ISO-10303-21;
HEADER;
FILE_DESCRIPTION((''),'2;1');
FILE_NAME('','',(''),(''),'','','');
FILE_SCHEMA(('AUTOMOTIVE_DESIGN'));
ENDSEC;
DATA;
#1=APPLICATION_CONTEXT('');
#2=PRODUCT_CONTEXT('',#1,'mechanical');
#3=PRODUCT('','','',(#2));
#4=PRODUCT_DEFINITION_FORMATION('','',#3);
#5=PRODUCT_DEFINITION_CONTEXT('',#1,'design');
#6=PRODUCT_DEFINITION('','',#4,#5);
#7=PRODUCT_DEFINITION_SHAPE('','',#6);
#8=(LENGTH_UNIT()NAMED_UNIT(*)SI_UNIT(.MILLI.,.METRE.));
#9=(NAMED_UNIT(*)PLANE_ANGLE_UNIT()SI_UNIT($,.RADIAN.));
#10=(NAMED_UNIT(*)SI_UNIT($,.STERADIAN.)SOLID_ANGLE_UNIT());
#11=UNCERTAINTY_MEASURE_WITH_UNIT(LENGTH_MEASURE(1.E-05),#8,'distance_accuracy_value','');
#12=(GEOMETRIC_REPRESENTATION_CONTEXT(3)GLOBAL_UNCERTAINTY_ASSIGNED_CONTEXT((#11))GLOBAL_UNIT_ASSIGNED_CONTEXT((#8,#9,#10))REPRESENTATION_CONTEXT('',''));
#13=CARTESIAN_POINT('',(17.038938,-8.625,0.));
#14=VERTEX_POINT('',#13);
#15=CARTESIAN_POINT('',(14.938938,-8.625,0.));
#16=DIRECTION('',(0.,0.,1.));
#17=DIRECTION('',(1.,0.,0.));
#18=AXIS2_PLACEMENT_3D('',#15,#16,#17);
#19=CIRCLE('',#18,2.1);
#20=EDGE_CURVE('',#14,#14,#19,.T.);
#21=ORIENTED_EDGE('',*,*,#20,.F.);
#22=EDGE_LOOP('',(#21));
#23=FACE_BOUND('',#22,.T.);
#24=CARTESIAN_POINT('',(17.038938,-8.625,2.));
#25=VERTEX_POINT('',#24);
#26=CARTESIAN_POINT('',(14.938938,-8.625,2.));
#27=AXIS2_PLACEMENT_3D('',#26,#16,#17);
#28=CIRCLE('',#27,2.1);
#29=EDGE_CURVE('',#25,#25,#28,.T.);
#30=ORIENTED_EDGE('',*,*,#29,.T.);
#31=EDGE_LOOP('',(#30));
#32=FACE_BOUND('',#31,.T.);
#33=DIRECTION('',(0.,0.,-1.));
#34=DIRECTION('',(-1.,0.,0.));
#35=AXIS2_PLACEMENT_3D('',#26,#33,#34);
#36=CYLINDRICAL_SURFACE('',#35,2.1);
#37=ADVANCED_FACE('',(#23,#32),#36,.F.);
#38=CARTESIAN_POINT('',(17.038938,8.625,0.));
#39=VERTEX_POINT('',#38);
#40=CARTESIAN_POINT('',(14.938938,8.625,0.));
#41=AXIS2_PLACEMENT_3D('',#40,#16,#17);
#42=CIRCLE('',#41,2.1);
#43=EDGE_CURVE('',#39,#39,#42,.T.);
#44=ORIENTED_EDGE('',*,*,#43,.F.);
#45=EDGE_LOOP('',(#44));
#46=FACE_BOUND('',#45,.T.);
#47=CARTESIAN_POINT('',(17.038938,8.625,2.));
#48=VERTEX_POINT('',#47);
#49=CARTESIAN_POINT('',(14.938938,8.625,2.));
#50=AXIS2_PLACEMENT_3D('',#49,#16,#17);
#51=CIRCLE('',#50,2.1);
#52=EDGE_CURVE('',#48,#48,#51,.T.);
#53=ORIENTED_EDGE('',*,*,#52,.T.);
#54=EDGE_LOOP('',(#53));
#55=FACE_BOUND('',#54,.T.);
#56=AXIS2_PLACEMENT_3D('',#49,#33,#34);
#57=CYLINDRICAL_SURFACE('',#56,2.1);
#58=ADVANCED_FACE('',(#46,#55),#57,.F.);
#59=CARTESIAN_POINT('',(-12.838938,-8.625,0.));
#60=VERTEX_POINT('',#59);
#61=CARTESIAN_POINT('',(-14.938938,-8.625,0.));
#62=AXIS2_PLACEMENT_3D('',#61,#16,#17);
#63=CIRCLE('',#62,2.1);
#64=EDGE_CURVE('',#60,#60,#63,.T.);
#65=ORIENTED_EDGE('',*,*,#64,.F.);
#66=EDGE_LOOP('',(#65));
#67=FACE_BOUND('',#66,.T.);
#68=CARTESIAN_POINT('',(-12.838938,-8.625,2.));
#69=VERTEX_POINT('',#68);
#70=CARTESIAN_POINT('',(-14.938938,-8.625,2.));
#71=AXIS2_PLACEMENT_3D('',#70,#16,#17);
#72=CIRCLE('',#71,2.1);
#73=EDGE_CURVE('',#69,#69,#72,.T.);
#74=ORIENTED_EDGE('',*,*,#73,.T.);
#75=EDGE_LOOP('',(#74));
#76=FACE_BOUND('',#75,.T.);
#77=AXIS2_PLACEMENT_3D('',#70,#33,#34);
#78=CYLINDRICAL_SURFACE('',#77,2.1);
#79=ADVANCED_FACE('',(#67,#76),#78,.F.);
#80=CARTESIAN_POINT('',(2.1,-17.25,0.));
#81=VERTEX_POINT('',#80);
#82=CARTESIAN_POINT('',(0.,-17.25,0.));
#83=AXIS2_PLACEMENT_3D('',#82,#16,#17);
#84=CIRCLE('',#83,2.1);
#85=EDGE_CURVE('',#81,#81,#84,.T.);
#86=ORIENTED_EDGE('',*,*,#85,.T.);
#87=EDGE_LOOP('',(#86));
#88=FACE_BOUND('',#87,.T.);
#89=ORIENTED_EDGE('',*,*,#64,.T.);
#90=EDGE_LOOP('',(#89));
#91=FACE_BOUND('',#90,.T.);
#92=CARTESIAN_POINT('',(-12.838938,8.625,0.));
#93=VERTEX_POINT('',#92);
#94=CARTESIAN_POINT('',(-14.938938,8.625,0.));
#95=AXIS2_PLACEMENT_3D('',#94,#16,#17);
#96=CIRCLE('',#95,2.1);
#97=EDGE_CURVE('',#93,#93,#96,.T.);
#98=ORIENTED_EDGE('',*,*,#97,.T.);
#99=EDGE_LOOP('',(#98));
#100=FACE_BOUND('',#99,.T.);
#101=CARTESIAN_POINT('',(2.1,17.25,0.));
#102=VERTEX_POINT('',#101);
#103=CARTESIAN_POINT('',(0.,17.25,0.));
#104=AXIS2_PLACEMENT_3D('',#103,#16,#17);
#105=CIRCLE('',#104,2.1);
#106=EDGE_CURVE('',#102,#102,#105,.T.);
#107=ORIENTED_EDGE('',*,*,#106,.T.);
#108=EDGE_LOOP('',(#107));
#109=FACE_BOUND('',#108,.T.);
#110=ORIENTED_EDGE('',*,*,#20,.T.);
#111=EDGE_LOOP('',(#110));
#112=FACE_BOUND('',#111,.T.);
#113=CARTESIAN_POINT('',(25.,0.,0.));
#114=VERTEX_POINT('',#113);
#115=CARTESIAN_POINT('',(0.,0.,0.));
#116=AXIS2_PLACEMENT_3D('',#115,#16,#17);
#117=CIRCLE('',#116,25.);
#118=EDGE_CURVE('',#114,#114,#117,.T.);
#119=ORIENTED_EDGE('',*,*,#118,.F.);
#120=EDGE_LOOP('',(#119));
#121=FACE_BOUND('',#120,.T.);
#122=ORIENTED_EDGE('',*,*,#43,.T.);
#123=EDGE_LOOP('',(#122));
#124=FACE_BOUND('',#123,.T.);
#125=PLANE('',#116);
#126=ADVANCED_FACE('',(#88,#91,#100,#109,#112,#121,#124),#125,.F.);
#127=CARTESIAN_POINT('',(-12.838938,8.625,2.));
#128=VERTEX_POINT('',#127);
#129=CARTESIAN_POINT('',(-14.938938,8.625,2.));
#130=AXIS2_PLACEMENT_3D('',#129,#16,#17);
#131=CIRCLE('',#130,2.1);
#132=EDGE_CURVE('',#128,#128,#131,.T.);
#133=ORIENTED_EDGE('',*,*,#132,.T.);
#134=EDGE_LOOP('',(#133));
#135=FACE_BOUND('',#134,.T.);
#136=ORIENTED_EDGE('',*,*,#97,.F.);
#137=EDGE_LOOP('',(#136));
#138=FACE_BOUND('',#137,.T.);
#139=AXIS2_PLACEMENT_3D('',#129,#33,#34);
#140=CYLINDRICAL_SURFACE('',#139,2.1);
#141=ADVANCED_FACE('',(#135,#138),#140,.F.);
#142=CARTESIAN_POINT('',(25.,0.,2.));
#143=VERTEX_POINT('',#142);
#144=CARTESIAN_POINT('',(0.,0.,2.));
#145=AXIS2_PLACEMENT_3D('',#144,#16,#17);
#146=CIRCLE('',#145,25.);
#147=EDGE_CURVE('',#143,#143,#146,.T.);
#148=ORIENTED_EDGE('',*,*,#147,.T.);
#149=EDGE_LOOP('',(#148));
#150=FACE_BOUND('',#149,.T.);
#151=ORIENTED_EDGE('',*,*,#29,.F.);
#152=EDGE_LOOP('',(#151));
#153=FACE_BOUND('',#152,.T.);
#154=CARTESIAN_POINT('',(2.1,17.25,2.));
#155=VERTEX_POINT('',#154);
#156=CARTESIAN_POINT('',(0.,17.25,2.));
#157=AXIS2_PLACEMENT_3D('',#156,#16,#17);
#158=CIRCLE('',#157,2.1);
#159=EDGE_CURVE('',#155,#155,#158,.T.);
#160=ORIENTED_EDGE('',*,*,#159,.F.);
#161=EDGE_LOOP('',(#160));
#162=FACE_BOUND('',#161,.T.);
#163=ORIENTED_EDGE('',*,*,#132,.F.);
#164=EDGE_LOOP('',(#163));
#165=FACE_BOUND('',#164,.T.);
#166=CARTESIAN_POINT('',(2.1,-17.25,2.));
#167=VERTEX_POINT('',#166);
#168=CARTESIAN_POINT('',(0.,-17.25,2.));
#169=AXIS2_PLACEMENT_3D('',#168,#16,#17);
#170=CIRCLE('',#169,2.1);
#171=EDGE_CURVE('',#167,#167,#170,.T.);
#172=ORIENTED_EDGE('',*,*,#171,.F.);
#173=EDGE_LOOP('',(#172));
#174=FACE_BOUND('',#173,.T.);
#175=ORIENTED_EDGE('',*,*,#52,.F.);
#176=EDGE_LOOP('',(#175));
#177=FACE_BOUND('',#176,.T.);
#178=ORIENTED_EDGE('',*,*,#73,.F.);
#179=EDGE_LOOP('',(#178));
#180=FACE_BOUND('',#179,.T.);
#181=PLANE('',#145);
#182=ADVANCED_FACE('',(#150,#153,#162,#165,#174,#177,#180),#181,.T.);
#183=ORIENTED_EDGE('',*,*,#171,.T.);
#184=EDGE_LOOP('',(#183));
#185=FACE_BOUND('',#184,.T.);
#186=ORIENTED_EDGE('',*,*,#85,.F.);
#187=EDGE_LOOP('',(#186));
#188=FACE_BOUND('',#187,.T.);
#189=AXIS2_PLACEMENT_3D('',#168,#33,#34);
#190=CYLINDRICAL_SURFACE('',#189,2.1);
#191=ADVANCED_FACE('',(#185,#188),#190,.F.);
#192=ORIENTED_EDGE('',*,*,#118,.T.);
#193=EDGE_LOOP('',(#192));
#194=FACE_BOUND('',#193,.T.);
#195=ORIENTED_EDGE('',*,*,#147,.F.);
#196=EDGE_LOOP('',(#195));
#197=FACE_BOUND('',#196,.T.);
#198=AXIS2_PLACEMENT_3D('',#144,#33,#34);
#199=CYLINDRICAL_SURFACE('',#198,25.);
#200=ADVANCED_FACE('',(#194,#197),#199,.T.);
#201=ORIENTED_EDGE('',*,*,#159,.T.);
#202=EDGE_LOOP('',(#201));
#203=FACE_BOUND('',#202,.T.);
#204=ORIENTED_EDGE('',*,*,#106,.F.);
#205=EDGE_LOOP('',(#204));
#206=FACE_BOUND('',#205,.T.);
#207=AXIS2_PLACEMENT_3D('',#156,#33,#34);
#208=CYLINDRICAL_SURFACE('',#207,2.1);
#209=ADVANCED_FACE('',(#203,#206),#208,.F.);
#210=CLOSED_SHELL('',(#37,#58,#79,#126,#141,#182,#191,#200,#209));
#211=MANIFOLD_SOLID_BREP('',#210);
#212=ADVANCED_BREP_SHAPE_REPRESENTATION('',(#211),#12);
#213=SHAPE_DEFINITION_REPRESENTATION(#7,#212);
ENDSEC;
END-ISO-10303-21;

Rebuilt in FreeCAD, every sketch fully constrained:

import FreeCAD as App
import Part
import Sketcher
Q = App.Units.Quantity

doc = App.newDocument("Part")
body = doc.addObject("PartDesign::Body", "Body")

# Sketch on XY plane
sketch1 = body.newObject("Sketcher::SketchObject", "Sketch")
sketch1.AttachmentSupport = (doc.getObject("XY_Plane"), [""])
sketch1.MapMode = "FlatFace"
sketch1.addGeometry([
    Part.Circle(App.Vector(0, 0, 0), App.Vector(0, 0, 1), 25),  # 0
    Part.Circle(App.Vector(-14.9, -8.6, 0), App.Vector(0, 0, 1), 2.1),  # 1
    Part.Circle(App.Vector(0, -17.2, 0), App.Vector(0, 0, 1), 2.1),  # 2
    Part.Circle(App.Vector(14.9, -8.6, 0), App.Vector(0, 0, 1), 2.1),  # 3
    Part.Circle(App.Vector(-14.9, 8.6, 0), App.Vector(0, 0, 1), 2.1),  # 4
    Part.Circle(App.Vector(14.9, 8.6, 0), App.Vector(0, 0, 1), 2.1),  # 5
    Part.Circle(App.Vector(0, 17.2, 0), App.Vector(0, 0, 1), 2.1),  # 6
], False)
sketch1.addConstraint([
    Sketcher.Constraint("Coincident", 0, 3, -1, 1),
    Sketcher.Constraint("Equal", 1, 2),
    Sketcher.Constraint("Equal", 2, 3),
    Sketcher.Constraint("Equal", 3, 4),
    Sketcher.Constraint("Equal", 4, 5),
    Sketcher.Constraint("Equal", 5, 6),
    Sketcher.Constraint("Symmetric", 3, 3, 4, 3, -1, 1),
    Sketcher.Constraint("Symmetric", 1, 3, 5, 3, -1, 1),
    Sketcher.Constraint("Symmetric", 2, 3, 6, 3, -1, 1),
    Sketcher.Constraint("Symmetric", 1, 3, 3, 3, -2),
    Sketcher.Constraint("PointOnObject", 2, 3, -2),
    Sketcher.Constraint("Diameter", 0, Q("50 mm")),
    Sketcher.Constraint("Diameter", 1, Q("4.2 mm")),
    Sketcher.Constraint("DistanceY", 2, 3, -1, 1, Q("17.25 mm")),
    Sketcher.Constraint("DistanceY", 1, 3, 4, 3, Q("17.25 mm")),
    Sketcher.Constraint("DistanceX", 1, 3, -1, 1, Q("14.938938 mm")),
])
pad1 = body.newObject("PartDesign::Pad", "Pad")
pad1.Profile = sketch1
pad1.Length = 2

doc.recompute()
